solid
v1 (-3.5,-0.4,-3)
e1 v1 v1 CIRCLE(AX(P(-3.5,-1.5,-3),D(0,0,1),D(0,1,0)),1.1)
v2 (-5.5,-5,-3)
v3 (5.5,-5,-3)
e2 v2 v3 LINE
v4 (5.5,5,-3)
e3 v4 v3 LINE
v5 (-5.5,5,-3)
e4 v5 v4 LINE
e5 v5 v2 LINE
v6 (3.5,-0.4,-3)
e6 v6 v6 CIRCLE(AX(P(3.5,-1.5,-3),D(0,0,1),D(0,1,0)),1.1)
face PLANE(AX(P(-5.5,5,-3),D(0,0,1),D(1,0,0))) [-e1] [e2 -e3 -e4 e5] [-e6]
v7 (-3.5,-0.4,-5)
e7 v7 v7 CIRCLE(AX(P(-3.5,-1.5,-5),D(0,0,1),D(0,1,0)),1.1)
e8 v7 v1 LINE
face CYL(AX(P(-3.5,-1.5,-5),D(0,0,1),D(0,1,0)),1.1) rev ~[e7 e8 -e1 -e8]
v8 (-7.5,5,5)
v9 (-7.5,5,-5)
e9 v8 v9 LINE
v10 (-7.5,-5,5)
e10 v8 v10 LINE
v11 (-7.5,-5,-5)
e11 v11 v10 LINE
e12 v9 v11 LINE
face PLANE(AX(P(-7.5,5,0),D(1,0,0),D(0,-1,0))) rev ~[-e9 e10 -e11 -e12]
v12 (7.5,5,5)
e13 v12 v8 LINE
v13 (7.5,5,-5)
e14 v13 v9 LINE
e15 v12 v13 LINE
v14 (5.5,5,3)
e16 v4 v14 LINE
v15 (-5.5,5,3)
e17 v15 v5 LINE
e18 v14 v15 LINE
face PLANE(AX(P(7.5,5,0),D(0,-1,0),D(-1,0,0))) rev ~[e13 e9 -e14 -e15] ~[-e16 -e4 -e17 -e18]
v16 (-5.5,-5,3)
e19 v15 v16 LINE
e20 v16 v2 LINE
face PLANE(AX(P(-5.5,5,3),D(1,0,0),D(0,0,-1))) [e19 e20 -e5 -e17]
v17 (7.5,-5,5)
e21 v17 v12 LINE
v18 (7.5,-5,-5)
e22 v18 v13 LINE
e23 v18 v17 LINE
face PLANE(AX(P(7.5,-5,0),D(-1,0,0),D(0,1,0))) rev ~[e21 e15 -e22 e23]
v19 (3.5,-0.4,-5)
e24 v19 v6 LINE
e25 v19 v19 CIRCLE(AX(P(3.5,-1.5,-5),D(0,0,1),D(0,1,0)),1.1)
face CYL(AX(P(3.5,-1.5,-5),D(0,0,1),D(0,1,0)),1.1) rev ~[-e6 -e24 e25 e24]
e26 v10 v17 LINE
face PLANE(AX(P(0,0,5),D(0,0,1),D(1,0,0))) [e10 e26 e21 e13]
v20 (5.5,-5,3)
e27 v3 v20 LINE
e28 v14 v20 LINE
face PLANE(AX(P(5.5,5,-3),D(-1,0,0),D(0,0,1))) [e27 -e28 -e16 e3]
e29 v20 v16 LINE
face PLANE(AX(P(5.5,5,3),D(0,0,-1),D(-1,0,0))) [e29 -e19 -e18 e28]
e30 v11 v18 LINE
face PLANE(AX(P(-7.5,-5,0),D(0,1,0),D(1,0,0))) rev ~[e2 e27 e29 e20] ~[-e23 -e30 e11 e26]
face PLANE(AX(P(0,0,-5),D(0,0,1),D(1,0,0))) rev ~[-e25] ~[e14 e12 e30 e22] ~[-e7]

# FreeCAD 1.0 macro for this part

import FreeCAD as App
import Part
import Sketcher
Q = App.Units.Quantity


def add_polygon(sketch, points):
    """Adds a closed chain of lines whose ends are joined by coincident constraints."""
    first, n = sketch.GeometryCount, len(points)
    for a, b in zip(points, points[1:] + points[:1]):
        sketch.addGeometry(Part.LineSegment(App.Vector(*a, 0), App.Vector(*b, 0)), False)
    for i in range(n):
        sketch.addConstraint(Sketcher.Constraint("Coincident", first + i, 2, first + (i + 1) % n, 1))

doc = App.newDocument("Part")
body = doc.addObject("PartDesign::Body", "Body")

# Sketch on XY plane
sketch1 = body.newObject("Sketcher::SketchObject", "Sketch")
sketch1.AttachmentSupport = (doc.getObject("XY_Plane"), [""])
sketch1.MapMode = "FlatFace"
add_polygon(sketch1, [(-8, 5), (-8, -5), (8, -5), (8, 5)])  # lines 0-3
sketch1.addConstraint([
    Sketcher.Constraint("Vertical", 0),
    Sketcher.Constraint("Horizontal", 1),
    Sketcher.Constraint("Vertical", 2),
    Sketcher.Constraint("Horizontal", 3),
    Sketcher.Constraint("Symmetric", 0, 2, 2, 2, -1, 1),
    Sketcher.Constraint("DistanceX", 1, 1, 1, 2, Q("15 mm")),
    Sketcher.Constraint("DistanceY", 0, 2, 0, 1, Q("10 mm")),
])
pad1 = body.newObject("PartDesign::Pad", "Pad")
pad1.Profile = sketch1
pad1.Length = 10
pad1.Midplane = True

# Sketch on XZ plane
sketch2 = body.newObject("Sketcher::SketchObject", "Sketch001")
sketch2.AttachmentSupport = (doc.getObject("XZ_Plane"), [""])
sketch2.MapMode = "FlatFace"
sketch2.AttachmentOffset = App.Placement(App.Vector(0, 0, -5), App.Rotation())
add_polygon(sketch2, [(-6, 3), (6, 3), (6, -3), (-6, -3)])  # lines 0-3
sketch2.addConstraint([
    Sketcher.Constraint("Horizontal", 0),
    Sketcher.Constraint("Vertical", 1),
    Sketcher.Constraint("Horizontal", 2),
    Sketcher.Constraint("Vertical", 3),
    Sketcher.Constraint("Symmetric", 0, 2, 2, 2, -1, 1),
    Sketcher.Constraint("DistanceX", 0, 1, 0, 2, Q("11 mm")),
    Sketcher.Constraint("DistanceY", 1, 2, 1, 1, Q("6 mm")),
])
pocket1 = body.newObject("PartDesign::Pocket", "Pocket")
pocket1.Profile = sketch2
pocket1.Length = 10
pocket1.Reversed = True

# Sketch on XY plane
sketch3 = body.newObject("Sketcher::SketchObject", "Sketch002")
sketch3.AttachmentSupport = (doc.getObject("XY_Plane"), [""])
sketch3.MapMode = "FlatFace"
sketch3.AttachmentOffset = App.Placement(App.Vector(0, 0, -5), App.Rotation())
sketch3.addGeometry([
    Part.Circle(App.Vector(3.5, -1.5, 0), App.Vector(0, 0, 1), 1.1),
    Part.Circle(App.Vector(-3.5, -1.5, 0), App.Vector(0, 0, 1), 1.1),
], False)
sketch3.addConstraint([
    Sketcher.Constraint("Equal", 0, 1),
    Sketcher.Constraint("Symmetric", 0, 3, 1, 3, -2),
    Sketcher.Constraint("Diameter", 0, Q("2.2 mm")),
    Sketcher.Constraint("DistanceX", 1, 3, 0, 3, Q("7 mm")),
    Sketcher.Constraint("DistanceY", 0, 3, -1, 1, Q("1.5 mm")),
])
doc.recompute()
hole = body.newObject("PartDesign::Hole", "Hole")
hole.Profile = sketch3
hole.ThreadType = "None"
hole.Diameter = 2.2
hole.DepthType = "Dimension"
hole.Depth = 4
hole.DrillPoint = "Angled"
hole.DrillPointAngle = 118
hole.Reversed = True

doc.recompute()
